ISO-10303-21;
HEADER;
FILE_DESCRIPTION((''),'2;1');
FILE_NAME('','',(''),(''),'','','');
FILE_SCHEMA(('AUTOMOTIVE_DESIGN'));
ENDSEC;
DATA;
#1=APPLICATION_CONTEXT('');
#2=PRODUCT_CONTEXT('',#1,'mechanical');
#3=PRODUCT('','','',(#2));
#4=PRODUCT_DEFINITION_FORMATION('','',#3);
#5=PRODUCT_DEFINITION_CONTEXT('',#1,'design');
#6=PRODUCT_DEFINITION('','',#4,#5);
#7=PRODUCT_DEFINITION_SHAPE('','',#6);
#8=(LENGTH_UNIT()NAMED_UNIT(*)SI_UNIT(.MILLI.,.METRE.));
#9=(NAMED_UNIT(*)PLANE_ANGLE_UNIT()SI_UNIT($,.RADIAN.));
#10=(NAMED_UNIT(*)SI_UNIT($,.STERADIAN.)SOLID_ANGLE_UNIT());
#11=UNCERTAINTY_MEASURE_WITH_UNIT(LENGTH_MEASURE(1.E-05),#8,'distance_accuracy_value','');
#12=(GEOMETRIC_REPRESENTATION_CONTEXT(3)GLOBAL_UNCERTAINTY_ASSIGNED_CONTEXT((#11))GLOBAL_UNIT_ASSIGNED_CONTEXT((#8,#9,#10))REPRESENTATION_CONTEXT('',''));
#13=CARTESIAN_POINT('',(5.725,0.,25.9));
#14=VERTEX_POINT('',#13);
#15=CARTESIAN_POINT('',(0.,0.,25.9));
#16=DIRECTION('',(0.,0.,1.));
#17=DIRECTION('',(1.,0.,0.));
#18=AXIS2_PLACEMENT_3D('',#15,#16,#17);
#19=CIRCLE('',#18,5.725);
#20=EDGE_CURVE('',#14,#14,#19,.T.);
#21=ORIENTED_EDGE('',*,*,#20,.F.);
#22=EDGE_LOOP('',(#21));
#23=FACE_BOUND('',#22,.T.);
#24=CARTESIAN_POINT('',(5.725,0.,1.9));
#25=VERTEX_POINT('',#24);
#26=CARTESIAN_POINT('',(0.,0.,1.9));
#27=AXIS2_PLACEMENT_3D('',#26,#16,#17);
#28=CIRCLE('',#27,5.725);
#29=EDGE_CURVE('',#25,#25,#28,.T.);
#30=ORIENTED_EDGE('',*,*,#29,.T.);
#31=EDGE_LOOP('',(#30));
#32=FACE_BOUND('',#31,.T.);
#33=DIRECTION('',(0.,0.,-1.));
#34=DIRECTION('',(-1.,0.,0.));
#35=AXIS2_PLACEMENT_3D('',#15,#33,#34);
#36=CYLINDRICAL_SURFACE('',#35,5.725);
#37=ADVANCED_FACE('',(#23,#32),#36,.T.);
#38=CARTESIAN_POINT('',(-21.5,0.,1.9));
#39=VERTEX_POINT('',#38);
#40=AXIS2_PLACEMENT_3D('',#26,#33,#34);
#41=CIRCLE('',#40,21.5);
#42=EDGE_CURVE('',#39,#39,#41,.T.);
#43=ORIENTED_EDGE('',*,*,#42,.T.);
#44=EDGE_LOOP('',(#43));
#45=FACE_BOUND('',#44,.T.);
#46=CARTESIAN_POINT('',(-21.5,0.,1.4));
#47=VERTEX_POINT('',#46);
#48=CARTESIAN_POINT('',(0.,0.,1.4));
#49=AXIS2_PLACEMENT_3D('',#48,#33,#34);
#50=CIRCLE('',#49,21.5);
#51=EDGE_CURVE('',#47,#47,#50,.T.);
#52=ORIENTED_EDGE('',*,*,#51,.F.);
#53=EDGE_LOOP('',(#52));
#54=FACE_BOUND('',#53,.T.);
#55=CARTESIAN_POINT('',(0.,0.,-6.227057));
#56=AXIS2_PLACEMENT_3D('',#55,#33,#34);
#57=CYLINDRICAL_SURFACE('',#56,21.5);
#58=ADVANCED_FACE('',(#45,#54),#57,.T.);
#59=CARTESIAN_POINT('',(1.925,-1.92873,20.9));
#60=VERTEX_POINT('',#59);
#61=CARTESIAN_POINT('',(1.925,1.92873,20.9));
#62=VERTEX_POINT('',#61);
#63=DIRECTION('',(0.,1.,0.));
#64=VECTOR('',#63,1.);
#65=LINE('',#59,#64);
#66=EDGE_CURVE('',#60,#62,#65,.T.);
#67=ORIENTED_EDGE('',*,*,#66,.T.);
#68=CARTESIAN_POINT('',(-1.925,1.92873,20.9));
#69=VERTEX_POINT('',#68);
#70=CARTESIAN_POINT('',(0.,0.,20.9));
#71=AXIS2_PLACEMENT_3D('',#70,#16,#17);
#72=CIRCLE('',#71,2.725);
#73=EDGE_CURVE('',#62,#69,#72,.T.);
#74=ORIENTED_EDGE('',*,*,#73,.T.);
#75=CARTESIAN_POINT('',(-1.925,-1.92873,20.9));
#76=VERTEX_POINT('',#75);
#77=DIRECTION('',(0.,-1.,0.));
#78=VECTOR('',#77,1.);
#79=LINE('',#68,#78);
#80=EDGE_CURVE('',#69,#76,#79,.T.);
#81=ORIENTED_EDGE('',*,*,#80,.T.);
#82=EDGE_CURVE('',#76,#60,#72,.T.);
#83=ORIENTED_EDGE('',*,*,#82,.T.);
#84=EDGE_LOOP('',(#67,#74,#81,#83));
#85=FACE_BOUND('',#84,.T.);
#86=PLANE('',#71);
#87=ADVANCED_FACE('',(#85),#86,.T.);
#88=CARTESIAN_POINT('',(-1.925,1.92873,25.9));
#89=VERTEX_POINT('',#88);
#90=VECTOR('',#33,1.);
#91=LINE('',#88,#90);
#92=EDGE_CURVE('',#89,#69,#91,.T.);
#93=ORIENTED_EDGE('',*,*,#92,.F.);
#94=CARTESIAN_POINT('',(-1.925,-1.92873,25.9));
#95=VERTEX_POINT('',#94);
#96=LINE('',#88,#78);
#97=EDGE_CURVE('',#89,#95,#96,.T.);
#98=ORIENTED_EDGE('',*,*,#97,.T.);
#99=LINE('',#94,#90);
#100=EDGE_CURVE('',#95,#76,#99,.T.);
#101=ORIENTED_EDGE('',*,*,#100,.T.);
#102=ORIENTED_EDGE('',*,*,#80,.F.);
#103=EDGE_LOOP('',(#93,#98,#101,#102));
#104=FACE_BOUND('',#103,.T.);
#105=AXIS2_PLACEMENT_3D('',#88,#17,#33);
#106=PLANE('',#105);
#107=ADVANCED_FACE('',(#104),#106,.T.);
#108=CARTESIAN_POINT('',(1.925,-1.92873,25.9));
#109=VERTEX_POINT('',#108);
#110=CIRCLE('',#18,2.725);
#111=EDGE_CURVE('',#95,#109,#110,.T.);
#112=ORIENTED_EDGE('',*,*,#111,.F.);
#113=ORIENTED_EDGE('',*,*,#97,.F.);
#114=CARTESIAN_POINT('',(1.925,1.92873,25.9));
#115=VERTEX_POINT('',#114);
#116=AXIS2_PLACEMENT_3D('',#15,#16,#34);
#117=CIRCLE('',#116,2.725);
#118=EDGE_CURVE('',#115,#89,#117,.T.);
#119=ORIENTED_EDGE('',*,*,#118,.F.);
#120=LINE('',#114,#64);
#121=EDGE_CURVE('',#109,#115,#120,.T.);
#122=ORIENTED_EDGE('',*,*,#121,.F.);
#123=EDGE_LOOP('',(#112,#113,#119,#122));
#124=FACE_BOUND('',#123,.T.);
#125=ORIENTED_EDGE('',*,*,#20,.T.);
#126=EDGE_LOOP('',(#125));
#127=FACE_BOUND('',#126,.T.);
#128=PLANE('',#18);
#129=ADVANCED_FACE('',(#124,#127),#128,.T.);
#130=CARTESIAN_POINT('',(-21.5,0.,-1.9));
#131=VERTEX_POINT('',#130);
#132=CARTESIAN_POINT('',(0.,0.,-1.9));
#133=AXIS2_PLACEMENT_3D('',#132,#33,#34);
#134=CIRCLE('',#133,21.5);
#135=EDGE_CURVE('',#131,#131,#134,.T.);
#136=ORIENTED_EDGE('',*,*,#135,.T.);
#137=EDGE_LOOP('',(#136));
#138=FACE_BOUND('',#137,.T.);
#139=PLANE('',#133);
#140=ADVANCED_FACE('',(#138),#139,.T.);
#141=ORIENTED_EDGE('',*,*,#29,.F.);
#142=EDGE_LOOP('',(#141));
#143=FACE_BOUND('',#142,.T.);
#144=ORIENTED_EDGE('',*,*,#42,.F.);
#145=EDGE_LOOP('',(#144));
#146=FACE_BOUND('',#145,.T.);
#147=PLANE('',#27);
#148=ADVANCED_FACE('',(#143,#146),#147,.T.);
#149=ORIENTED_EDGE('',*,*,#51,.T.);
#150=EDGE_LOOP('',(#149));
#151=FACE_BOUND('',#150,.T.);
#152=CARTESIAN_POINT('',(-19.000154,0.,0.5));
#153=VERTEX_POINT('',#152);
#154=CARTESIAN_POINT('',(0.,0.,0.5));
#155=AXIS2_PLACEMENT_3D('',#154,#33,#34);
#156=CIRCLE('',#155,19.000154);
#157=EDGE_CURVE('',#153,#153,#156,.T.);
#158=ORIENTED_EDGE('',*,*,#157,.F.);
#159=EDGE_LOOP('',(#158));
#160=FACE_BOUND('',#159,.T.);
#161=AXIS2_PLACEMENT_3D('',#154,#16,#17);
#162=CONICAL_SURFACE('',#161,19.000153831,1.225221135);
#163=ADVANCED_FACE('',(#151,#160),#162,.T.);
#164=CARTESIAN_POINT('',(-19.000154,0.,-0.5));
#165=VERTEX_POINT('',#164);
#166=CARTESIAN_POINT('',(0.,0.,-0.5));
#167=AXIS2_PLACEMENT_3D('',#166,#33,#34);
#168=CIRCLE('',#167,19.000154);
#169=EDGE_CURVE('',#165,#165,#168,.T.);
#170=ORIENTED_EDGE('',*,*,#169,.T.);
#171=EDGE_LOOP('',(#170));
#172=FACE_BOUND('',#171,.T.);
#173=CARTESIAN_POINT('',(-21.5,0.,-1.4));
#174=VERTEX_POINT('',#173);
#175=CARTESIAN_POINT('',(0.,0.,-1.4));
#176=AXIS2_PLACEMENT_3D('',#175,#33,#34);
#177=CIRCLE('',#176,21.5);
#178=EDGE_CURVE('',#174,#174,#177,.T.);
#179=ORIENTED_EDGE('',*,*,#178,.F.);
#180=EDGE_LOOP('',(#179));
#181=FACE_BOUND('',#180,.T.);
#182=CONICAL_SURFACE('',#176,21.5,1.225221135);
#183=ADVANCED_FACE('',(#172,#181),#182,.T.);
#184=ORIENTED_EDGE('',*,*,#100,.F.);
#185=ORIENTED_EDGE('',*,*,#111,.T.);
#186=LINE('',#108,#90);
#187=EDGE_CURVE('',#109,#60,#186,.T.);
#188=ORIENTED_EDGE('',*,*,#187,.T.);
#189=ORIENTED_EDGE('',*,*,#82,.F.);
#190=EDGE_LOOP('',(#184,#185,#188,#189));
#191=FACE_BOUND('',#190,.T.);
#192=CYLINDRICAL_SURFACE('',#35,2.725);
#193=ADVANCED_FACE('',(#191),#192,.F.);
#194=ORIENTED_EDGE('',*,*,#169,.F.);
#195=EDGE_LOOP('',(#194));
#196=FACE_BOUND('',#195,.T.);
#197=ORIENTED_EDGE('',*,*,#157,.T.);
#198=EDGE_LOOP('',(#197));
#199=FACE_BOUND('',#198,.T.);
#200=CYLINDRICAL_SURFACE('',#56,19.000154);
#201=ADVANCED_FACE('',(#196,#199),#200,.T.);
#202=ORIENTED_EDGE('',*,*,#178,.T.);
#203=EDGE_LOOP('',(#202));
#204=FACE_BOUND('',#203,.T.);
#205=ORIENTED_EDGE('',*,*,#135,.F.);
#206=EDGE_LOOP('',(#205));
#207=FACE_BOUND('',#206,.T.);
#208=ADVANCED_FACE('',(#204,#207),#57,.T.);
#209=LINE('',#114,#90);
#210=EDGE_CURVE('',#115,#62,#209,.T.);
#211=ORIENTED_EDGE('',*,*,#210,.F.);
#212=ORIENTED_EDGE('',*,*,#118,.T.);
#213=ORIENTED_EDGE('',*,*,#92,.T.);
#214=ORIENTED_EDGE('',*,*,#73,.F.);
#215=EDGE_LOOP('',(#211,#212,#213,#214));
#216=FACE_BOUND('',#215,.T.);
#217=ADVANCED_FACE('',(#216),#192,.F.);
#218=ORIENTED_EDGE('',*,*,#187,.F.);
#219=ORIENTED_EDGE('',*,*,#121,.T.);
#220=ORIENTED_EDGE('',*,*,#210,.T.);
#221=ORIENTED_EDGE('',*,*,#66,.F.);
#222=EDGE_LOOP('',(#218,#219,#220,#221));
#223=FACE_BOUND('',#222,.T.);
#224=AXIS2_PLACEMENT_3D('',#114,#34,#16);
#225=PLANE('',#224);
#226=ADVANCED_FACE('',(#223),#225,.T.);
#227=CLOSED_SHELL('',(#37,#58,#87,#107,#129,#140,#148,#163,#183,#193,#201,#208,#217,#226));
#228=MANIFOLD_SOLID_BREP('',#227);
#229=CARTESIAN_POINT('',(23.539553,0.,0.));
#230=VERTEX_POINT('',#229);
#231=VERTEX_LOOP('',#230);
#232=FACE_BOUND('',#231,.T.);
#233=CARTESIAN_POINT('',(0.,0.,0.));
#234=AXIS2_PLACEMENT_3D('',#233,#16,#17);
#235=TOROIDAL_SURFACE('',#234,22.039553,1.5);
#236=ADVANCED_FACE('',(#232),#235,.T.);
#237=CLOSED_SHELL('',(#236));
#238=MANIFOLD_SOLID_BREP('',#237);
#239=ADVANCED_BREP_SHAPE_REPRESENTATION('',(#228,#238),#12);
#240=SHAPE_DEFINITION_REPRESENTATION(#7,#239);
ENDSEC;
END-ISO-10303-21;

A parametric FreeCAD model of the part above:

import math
import FreeCAD as App
import Part
import Sketcher

V = App.Vector
Q = App.Units.Quantity

doc = App.newDocument("Part")
params = doc.addObject("Spreadsheet::Sheet", "Params")
for row, (alias, value) in enumerate([
    ("sketch1_height", "1 mm"),
    ("sketch1_width", "21.5 mm"),
    ("sketch1_height2", "3.8 mm"),
    ("sketch1_height3", "0.5 mm"),
    ("revolution_angle", "360 deg"),
    ("sketch2_diameter", "11.45 mm"),
    ("pad1_length", "24 mm"),
    ("sketch4_diameter", "3 mm"),
    ("revolution2_angle", "360 deg"),
], start=1):
    params.set(f"A{row}", alias)
    params.set(f"B{row}", "=" + value)
    params.setAlias(f"B{row}", alias)

body = doc.addObject("PartDesign::Body", "Body")

# Sketch on YZ plane
sketch1 = body.newObject("Sketcher::SketchObject", "Sketch")
sketch1.AttachmentSupport = (doc.getObject("YZ_Plane"), [""])
sketch1.MapMode = "FlatFace"
sketch1.addGeometry([
    Part.LineSegment(V(21.5, 1.9, 0), V(0, 1.9, 0)),  # 0
    Part.LineSegment(V(0, 1.9, 0), V(0, -1.9, 0)),  # 1
    Part.LineSegment(V(0, -1.9, 0), V(21.5, -1.9, 0)),  # 2
    Part.LineSegment(V(21.5, -1.9, 0), V(21.5, -1.4, 0)),  # 3
    Part.LineSegment(V(21.5, -1.4, 0), V(19, -0.5, 0)),  # 4
    Part.LineSegment(V(19, -0.5, 0), V(19, 0.5, 0)),  # 5
    Part.LineSegment(V(19, 0.5, 0), V(21.5, 1.4, 0)),  # 6
    Part.LineSegment(V(21.5, 1.4, 0), V(21.5, 1.9, 0)),  # 7
], False)
sketch1.addConstraint([
    Sketcher.Constraint("Coincident", 0, 2, 1, 1),
    Sketcher.Constraint("Coincident", 1, 2, 2, 1),
    Sketcher.Constraint("Coincident", 2, 2, 3, 1),
    Sketcher.Constraint("Coincident", 3, 2, 4, 1),
    Sketcher.Constraint("Coincident", 4, 2, 5, 1),
    Sketcher.Constraint("Coincident", 5, 2, 6, 1),
    Sketcher.Constraint("Coincident", 6, 2, 7, 1),
    Sketcher.Constraint("Coincident", 7, 2, 0, 1),
    Sketcher.Constraint("Horizontal", 0),
    Sketcher.Constraint("Vertical", 1),
    Sketcher.Constraint("Horizontal", 2),
    Sketcher.Constraint("Vertical", 3),
    Sketcher.Constraint("Vertical", 5),
    Sketcher.Constraint("Vertical", 7),
    Sketcher.Constraint("Symmetric", 0, 2, 1, 2, -1, 1),
    Sketcher.Constraint("Symmetric", 3, 2, 6, 2, -1),
    Sketcher.Constraint("Equal", 4, 6),
    Sketcher.Constraint("DistanceY", 5, 1, 5, 2, 1.0),
    Sketcher.Constraint("DistanceX", 0, 2, 0, 1, 21.5),
    Sketcher.Constraint("DistanceY", 1, 2, 1, 1, 3.8),
    Sketcher.Constraint("DistanceY", 3, 1, 3, 2, 0.5),
    Sketcher.Constraint("Angle", 4, Q("160.2 deg")),
])
sketch1.setExpression("Constraints[17]", "Params.sketch1_height")
sketch1.setExpression("Constraints[18]", "Params.sketch1_width")
sketch1.setExpression("Constraints[19]", "Params.sketch1_height2")
sketch1.setExpression("Constraints[20]", "Params.sketch1_height3")
revolution = body.newObject("PartDesign::Revolution", "Revolution")
revolution.Profile = sketch1
revolution.ReferenceAxis = (sketch1, ["V_Axis"])
revolution.setExpression("Angle", "Params.revolution_angle")

# Sketch on XY plane
sketch2 = body.newObject("Sketcher::SketchObject", "Sketch001")
sketch2.AttachmentSupport = (doc.getObject("XY_Plane"), [""])
sketch2.MapMode = "FlatFace"
sketch2.AttachmentOffset = App.Placement(V(0, 0, 1.9), App.Rotation())
sketch2.addGeometry([
    Part.Circle(V(0, 0, 0), V(0, 0, 1), 5.7),  # 0
    Part.LineSegment(V(-1.9, -1.9, 0), V(-1.9, 1.9, 0)),  # 1
    Part.ArcOfCircle(Part.Circle(V(0, 0, 0), V(0, 0, 1), 2.7), math.radians(45), math.radians(135)),  # 2
    Part.LineSegment(V(1.9, 1.9, 0), V(1.9, -1.9, 0)),  # 3
    Part.ArcOfCircle(Part.Circle(V(0, 0, 0), V(0, 0, 1), 2.7), math.radians(-135), math.radians(-45)),  # 4
], False)
sketch2.addConstraint([
    Sketcher.Constraint("Coincident", 1, 2, 2, 2),
    Sketcher.Constraint("Coincident", 2, 1, 3, 1),
    Sketcher.Constraint("Coincident", 3, 2, 4, 2),
    Sketcher.Constraint("Coincident", 4, 1, 1, 1),
    Sketcher.Constraint("Vertical", 1),
    Sketcher.Constraint("Vertical", 3),
    Sketcher.Constraint("Coincident", 0, 3, -1, 1),
    Sketcher.Constraint("Coincident", 2, 3, -1, 1),
    Sketcher.Constraint("Coincident", 4, 3, -1, 1),
    Sketcher.Constraint("Equal", 2, 4),
    Sketcher.Constraint("Horizontal", 1, 2, 2, 1),
    Sketcher.Constraint("Diameter", 0, 11.45),
    Sketcher.Constraint("Radius", 2, 2.725),
    Sketcher.Constraint("DistanceX", 1, 2, 2, 1, 3.85),
])
sketch2.setExpression("Constraints[11]", "Params.sketch2_diameter")
pad1 = body.newObject("PartDesign::Pad", "Pad")
pad1.Profile = sketch2
pad1.setExpression("Length", "Params.pad1_length")

# Sketch on XY plane
sketch3 = body.newObject("Sketcher::SketchObject", "Sketch002")
sketch3.AttachmentSupport = (doc.getObject("XY_Plane"), [""])
sketch3.MapMode = "FlatFace"
sketch3.AttachmentOffset = App.Placement(V(0, 0, 20.9), App.Rotation())
sketch3.addGeometry([
    Part.LineSegment(V(-1.9, 1.9, 0), V(-1.9, -1.9, 0)),
    Part.ArcOfCircle(Part.Circle(V(0, 0, 0), V(0, 0, 1), 2.7), math.radians(-135), math.radians(-45)),
    Part.LineSegment(V(1.9, -1.9, 0), V(1.9, 1.9, 0)),
    Part.ArcOfCircle(Part.Circle(V(0, 0, 0), V(0, 0, 1), 2.7), math.radians(45), math.radians(135)),
], False)
sketch3.addConstraint([
    Sketcher.Constraint("Coincident", 0, 2, 1, 1),
    Sketcher.Constraint("Coincident", 1, 2, 2, 1),
    Sketcher.Constraint("Coincident", 2, 2, 3, 1),
    Sketcher.Constraint("Coincident", 3, 2, 0, 1),
    Sketcher.Constraint("Vertical", 0),
    Sketcher.Constraint("Vertical", 2),
    Sketcher.Constraint("Coincident", 1, 3, -1, 1),
    Sketcher.Constraint("Coincident", 3, 3, -1, 1),
    Sketcher.Constraint("Equal", 1, 3),
    Sketcher.Constraint("Horizontal", 0, 2, 1, 2),
    Sketcher.Constraint("Radius", 1, 2.725),
    Sketcher.Constraint("DistanceX", 0, 2, 1, 2, 3.85),
])
pad2 = body.newObject("PartDesign::Pad", "Pad001")
pad2.Profile = sketch3
pad2.Type = "UpToFirst"
pad2.Reversed = True
body2 = doc.addObject("PartDesign::Body", "Body001")

# Sketch on YZ plane
sketch4 = body2.newObject("Sketcher::SketchObject", "Sketch003")
sketch4.AttachmentSupport = (doc.getObject("YZ_Plane001"), [""])
sketch4.MapMode = "FlatFace"
sketch4.addGeometry(Part.Circle(V(22, 0, 0), V(0, 0, 1), 1.5), False)
sketch4.addConstraint([
    Sketcher.Constraint("PointOnObject", 0, 3, -1),
    Sketcher.Constraint("Diameter", 0, 3.0),
    Sketcher.Constraint("DistanceX", -1, 1, 0, 3, 22.039553),
])
sketch4.setExpression("Constraints[1]", "Params.sketch4_diameter")
revolution2 = body2.newObject("PartDesign::Revolution", "Revolution001")
revolution2.Profile = sketch4
revolution2.ReferenceAxis = (sketch4, ["V_Axis"])
revolution2.setExpression("Angle", "Params.revolution2_angle")

doc.recompute()
